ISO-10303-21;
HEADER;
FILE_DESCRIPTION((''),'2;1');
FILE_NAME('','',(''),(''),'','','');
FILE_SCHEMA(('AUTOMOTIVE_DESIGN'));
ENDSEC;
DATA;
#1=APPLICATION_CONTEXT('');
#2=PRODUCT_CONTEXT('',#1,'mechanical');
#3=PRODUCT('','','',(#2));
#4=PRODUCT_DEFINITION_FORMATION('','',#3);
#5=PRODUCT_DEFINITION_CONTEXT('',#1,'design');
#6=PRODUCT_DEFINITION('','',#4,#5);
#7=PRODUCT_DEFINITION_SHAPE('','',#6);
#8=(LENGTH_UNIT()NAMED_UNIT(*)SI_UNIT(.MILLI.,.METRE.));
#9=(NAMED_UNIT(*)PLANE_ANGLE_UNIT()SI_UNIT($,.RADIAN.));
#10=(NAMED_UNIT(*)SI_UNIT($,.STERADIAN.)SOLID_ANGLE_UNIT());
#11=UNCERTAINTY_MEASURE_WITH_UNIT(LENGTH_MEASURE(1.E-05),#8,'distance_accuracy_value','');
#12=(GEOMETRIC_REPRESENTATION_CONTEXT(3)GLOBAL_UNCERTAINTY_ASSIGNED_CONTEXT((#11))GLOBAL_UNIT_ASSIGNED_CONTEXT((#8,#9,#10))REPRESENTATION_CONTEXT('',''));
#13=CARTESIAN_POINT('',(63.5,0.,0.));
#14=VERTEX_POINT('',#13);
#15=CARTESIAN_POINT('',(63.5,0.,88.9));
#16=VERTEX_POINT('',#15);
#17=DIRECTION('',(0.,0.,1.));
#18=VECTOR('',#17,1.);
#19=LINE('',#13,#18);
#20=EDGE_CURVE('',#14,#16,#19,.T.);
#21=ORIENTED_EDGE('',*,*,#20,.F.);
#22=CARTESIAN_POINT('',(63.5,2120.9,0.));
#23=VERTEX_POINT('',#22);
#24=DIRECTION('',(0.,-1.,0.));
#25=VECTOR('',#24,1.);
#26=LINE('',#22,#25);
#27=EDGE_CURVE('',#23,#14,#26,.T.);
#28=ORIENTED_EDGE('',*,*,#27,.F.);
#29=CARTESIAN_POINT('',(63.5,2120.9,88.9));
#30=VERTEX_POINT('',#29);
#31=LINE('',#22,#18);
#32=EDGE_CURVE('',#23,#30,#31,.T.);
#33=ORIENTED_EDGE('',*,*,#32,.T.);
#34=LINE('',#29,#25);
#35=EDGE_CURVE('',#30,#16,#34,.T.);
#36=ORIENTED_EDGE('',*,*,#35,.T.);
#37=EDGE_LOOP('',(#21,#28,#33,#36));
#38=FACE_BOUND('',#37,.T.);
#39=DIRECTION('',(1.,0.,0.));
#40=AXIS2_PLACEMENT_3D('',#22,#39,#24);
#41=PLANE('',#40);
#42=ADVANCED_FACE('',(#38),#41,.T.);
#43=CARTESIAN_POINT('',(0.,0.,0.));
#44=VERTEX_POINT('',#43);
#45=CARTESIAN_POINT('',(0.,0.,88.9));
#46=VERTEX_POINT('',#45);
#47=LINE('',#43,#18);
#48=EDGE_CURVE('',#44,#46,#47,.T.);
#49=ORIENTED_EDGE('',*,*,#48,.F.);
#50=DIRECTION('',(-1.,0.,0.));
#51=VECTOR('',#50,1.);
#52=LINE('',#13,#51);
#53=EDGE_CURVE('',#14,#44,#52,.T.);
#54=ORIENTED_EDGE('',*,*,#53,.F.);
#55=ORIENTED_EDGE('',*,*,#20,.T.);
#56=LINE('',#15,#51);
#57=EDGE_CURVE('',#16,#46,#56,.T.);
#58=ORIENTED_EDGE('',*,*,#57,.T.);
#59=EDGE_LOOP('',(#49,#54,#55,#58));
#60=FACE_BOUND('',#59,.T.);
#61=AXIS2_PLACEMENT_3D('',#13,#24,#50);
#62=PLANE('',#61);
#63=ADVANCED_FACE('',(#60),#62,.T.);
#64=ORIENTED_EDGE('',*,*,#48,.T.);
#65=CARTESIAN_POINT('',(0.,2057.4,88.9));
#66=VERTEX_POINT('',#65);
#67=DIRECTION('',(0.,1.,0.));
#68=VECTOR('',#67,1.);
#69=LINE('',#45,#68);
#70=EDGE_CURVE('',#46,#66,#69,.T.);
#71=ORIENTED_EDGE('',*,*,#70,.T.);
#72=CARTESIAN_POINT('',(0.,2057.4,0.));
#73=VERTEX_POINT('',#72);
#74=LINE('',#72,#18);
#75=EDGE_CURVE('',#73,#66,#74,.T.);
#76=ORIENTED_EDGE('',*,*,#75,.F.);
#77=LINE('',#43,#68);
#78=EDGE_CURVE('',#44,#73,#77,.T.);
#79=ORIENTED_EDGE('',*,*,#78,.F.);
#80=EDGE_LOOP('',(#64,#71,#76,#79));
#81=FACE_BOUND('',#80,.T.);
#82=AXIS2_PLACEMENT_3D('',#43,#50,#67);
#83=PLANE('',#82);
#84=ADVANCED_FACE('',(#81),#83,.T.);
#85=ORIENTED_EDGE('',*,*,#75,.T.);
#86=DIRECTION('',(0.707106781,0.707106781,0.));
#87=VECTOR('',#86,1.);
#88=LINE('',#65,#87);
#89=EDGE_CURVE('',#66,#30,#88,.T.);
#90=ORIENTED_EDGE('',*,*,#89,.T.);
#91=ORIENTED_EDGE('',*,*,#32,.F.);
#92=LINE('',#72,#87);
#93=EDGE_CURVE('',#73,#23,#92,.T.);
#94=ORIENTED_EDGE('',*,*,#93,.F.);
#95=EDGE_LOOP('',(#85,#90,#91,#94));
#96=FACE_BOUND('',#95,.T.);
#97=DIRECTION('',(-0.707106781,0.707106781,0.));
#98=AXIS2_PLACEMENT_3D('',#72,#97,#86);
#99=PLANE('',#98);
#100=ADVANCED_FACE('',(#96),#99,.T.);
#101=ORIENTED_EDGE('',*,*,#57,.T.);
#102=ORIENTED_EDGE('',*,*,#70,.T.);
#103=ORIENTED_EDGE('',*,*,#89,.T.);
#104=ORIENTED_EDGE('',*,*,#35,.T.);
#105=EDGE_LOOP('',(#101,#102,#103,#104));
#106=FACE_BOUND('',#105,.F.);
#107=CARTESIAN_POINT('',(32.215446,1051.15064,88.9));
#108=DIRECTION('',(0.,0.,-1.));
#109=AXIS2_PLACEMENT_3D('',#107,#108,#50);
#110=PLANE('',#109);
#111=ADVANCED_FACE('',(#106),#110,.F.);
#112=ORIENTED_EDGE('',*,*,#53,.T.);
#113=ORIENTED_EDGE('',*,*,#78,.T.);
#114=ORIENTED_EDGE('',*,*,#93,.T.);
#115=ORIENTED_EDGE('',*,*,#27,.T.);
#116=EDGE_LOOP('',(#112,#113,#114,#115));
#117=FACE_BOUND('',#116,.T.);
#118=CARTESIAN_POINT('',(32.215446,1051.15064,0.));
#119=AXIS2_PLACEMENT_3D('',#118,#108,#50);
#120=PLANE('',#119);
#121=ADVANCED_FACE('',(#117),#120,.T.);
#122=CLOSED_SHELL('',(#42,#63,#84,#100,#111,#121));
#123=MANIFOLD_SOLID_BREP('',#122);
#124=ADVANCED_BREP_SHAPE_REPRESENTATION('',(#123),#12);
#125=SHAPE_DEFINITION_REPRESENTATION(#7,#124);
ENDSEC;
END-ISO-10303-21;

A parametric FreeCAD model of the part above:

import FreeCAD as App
import Part
import Sketcher
from FreeCAD import Vector
Q = App.Units.Quantity


def add_polygon(sketch, points):
    """Adds a closed chain of lines whose ends are joined by coincident constraints."""
    first, n = sketch.GeometryCount, len(points)
    for a, b in zip(points, points[1:] + points[:1]):
        sketch.addGeometry(Part.LineSegment(App.Vector(*a, 0), App.Vector(*b, 0)), False)
    for i in range(n):
        sketch.addConstraint(Sketcher.Constraint("Coincident", first + i, 2, first + (i + 1) % n, 1))

doc = App.newDocument("Part")
body = doc.addObject("PartDesign::Body", "Body")

# Sketch on XY plane
sketch1 = doc.addObject("Sketcher::SketchObject", "Sketch")
body.addObject(sketch1)
sketch1.AttachmentSupport = (doc.XY_Plane, [""])
sketch1.MapMode = "FlatFace"
add_polygon(sketch1, [(0, 2057), (0, 0), (64, 0), (64, 2121)])  # lines 0-3
sketch1.addConstraint([
    Sketcher.Constraint("Vertical", 0),
    Sketcher.Constraint("Horizontal", 1),
    Sketcher.Constraint("Vertical", 2),
    Sketcher.Constraint("Coincident", 0, 2, -1, 1),
    Sketcher.Constraint("DistanceY", 0, 2, 0, 1, Q("81 in")),
    Sketcher.Constraint("DistanceX", 1, 1, 1, 2, Q("2.5 in")),
    Sketcher.Constraint("DistanceY", 2, 1, 2, 2, Q("83.5 in")),
])
pad1 = doc.addObject("PartDesign::Pad", "Pad")
body.addObject(pad1)
pad1.Profile = sketch1
pad1.Length = Q("3.5 in")

doc.recompute()
